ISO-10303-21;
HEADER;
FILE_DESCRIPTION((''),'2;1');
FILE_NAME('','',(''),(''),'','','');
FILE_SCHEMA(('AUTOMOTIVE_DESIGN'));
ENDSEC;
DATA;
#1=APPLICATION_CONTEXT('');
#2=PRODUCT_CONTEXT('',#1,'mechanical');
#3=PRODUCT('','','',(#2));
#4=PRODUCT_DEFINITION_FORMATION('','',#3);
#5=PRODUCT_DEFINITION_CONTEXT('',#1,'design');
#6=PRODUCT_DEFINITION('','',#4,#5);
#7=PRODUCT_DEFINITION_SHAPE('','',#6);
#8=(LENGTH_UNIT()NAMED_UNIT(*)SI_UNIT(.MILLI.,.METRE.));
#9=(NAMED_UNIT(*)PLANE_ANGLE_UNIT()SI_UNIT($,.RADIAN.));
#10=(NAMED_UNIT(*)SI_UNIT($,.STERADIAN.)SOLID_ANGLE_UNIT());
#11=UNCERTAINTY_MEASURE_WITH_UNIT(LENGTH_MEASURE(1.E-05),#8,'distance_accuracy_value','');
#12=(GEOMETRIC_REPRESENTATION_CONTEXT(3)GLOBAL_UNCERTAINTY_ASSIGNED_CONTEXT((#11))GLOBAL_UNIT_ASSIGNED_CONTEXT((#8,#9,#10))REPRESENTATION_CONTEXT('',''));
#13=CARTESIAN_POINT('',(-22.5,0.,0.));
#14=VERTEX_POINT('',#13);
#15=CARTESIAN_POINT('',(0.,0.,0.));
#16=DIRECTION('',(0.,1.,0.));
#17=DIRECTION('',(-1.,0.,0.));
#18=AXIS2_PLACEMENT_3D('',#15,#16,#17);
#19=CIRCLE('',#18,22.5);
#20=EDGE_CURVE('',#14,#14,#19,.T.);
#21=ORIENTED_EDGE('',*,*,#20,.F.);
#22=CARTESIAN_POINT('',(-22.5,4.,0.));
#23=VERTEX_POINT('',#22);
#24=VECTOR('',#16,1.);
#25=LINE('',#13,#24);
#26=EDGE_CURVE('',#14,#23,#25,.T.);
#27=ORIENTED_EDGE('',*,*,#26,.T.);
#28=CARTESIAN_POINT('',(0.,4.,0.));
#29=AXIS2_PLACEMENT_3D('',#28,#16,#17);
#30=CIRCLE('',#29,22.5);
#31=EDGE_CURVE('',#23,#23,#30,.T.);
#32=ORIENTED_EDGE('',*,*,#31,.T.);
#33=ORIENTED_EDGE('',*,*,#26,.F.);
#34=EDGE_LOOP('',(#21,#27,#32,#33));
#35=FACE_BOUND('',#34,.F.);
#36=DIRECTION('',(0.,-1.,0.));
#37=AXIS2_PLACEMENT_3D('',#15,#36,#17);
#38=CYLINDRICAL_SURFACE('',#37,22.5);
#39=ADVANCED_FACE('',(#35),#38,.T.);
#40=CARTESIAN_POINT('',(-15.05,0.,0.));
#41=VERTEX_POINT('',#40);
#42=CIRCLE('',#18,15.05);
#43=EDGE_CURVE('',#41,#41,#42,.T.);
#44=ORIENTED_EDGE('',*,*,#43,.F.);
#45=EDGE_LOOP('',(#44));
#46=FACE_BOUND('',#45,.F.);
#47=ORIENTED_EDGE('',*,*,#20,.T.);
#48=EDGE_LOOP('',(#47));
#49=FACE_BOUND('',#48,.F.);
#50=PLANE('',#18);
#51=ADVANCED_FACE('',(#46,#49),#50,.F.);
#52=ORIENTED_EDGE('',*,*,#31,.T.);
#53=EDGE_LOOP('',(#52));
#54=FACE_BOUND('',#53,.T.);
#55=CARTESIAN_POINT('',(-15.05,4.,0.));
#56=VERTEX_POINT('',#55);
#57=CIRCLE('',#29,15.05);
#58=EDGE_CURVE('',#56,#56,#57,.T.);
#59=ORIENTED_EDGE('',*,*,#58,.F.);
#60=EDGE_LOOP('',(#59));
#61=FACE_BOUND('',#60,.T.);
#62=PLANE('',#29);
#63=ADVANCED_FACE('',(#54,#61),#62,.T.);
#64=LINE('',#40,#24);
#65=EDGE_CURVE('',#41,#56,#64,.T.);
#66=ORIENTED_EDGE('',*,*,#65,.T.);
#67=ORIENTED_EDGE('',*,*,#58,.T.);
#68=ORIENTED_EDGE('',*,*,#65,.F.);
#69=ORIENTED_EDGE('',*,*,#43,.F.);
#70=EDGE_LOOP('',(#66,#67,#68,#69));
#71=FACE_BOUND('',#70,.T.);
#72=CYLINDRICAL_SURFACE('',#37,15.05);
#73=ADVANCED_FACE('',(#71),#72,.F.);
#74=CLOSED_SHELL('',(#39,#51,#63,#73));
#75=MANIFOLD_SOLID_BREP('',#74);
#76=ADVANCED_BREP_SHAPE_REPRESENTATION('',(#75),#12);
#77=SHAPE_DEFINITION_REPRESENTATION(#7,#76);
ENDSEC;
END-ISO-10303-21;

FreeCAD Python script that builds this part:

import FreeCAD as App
import Part
import Sketcher
Q = App.Units.Quantity

doc = App.newDocument("Part")
body = doc.addObject("PartDesign::Body", "Body")

# Sketch on XZ plane
sketch1 = body.newObject("Sketcher::SketchObject", "Sketch")
sketch1.AttachmentSupport = (doc.getObject("XZ_Plane"), [""])
sketch1.MapMode = "FlatFace"
sketch1.addGeometry([
    Part.Circle(App.Vector(0, 0, 0), App.Vector(0, 0, 1), 22.5),
    Part.Circle(App.Vector(0, 0, 0), App.Vector(0, 0, 1), 15.05),
], False)
sketch1.addConstraint([
    Sketcher.Constraint("Coincident", 0, 3, -1, 1),
    Sketcher.Constraint("Coincident", 1, 3, -1, 1),
    Sketcher.Constraint("Diameter", 0, Q("45 mm")),
    Sketcher.Constraint("Diameter", 1, Q("30.1 mm")),
])
pad1 = body.newObject("PartDesign::Pad", "Pad")
pad1.Profile = sketch1
pad1.Length = 4
pad1.Reversed = True

doc.recompute()
